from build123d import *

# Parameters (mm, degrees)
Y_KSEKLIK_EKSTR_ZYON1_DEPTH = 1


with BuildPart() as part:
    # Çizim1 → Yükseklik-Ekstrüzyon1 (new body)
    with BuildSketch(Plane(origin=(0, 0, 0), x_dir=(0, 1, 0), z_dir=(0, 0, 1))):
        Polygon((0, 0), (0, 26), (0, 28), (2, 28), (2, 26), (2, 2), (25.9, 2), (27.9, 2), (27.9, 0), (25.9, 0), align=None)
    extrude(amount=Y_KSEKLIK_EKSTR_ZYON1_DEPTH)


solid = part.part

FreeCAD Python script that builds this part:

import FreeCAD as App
import Part
import Sketcher
from FreeCAD import Vector


def add_polygon(sketch, points):
    """Adds a closed chain of lines whose ends are joined by coincident constraints."""
    first, n = sketch.GeometryCount, len(points)
    for a, b in zip(points, points[1:] + points[:1]):
        sketch.addGeometry(Part.LineSegment(App.Vector(*a, 0), App.Vector(*b, 0)), False)
    for i in range(n):
        sketch.addConstraint(Sketcher.Constraint("Coincident", first + i, 2, first + (i + 1) % n, 1))

doc = App.newDocument("Part")
body = doc.addObject("PartDesign::Body", "Body")

sketch1 = doc.addObject("Sketcher::SketchObject", "Sketch")
body.addObject(sketch1)
sketch1.AttachmentSupport = (doc.XY_Plane, [""])
sketch1.MapMode = "FlatFace"
add_polygon(sketch1, [(-28, 0), (0, 0), (0, 27.9), (-2, 27.9), (-2, 2), (-28, 2)])
sketch1.addConstraint(Sketcher.Constraint("Horizontal", 0))
sketch1.addConstraint(Sketcher.Constraint("Vertical", 1))
sketch1.addConstraint(Sketcher.Constraint("Horizontal", 2))
sketch1.addConstraint(Sketcher.Constraint("Vertical", 3))
sketch1.addConstraint(Sketcher.Constraint("Horizontal", 4))
sketch1.addConstraint(Sketcher.Constraint("Vertical", 5))
sketch1.addConstraint(Sketcher.Constraint("Coincident", 0, 2, -1, 1))
sketch1.addConstraint(Sketcher.Constraint("Equal", 2, 5))
sketch1.addConstraint(Sketcher.Constraint("DistanceX", 0, 1, 0, 2, 28.0))
sketch1.addConstraint(Sketcher.Constraint("DistanceX", 2, 2, 2, 1, 2.0))
sketch1.addConstraint(Sketcher.Constraint("DistanceY", 1, 1, 1, 2, 27.9))
pad1 = doc.addObject("PartDesign::Pad", "Pad")
body.addObject(pad1)
pad1.Profile = sketch1
pad1.Length = 1

doc.recompute()
